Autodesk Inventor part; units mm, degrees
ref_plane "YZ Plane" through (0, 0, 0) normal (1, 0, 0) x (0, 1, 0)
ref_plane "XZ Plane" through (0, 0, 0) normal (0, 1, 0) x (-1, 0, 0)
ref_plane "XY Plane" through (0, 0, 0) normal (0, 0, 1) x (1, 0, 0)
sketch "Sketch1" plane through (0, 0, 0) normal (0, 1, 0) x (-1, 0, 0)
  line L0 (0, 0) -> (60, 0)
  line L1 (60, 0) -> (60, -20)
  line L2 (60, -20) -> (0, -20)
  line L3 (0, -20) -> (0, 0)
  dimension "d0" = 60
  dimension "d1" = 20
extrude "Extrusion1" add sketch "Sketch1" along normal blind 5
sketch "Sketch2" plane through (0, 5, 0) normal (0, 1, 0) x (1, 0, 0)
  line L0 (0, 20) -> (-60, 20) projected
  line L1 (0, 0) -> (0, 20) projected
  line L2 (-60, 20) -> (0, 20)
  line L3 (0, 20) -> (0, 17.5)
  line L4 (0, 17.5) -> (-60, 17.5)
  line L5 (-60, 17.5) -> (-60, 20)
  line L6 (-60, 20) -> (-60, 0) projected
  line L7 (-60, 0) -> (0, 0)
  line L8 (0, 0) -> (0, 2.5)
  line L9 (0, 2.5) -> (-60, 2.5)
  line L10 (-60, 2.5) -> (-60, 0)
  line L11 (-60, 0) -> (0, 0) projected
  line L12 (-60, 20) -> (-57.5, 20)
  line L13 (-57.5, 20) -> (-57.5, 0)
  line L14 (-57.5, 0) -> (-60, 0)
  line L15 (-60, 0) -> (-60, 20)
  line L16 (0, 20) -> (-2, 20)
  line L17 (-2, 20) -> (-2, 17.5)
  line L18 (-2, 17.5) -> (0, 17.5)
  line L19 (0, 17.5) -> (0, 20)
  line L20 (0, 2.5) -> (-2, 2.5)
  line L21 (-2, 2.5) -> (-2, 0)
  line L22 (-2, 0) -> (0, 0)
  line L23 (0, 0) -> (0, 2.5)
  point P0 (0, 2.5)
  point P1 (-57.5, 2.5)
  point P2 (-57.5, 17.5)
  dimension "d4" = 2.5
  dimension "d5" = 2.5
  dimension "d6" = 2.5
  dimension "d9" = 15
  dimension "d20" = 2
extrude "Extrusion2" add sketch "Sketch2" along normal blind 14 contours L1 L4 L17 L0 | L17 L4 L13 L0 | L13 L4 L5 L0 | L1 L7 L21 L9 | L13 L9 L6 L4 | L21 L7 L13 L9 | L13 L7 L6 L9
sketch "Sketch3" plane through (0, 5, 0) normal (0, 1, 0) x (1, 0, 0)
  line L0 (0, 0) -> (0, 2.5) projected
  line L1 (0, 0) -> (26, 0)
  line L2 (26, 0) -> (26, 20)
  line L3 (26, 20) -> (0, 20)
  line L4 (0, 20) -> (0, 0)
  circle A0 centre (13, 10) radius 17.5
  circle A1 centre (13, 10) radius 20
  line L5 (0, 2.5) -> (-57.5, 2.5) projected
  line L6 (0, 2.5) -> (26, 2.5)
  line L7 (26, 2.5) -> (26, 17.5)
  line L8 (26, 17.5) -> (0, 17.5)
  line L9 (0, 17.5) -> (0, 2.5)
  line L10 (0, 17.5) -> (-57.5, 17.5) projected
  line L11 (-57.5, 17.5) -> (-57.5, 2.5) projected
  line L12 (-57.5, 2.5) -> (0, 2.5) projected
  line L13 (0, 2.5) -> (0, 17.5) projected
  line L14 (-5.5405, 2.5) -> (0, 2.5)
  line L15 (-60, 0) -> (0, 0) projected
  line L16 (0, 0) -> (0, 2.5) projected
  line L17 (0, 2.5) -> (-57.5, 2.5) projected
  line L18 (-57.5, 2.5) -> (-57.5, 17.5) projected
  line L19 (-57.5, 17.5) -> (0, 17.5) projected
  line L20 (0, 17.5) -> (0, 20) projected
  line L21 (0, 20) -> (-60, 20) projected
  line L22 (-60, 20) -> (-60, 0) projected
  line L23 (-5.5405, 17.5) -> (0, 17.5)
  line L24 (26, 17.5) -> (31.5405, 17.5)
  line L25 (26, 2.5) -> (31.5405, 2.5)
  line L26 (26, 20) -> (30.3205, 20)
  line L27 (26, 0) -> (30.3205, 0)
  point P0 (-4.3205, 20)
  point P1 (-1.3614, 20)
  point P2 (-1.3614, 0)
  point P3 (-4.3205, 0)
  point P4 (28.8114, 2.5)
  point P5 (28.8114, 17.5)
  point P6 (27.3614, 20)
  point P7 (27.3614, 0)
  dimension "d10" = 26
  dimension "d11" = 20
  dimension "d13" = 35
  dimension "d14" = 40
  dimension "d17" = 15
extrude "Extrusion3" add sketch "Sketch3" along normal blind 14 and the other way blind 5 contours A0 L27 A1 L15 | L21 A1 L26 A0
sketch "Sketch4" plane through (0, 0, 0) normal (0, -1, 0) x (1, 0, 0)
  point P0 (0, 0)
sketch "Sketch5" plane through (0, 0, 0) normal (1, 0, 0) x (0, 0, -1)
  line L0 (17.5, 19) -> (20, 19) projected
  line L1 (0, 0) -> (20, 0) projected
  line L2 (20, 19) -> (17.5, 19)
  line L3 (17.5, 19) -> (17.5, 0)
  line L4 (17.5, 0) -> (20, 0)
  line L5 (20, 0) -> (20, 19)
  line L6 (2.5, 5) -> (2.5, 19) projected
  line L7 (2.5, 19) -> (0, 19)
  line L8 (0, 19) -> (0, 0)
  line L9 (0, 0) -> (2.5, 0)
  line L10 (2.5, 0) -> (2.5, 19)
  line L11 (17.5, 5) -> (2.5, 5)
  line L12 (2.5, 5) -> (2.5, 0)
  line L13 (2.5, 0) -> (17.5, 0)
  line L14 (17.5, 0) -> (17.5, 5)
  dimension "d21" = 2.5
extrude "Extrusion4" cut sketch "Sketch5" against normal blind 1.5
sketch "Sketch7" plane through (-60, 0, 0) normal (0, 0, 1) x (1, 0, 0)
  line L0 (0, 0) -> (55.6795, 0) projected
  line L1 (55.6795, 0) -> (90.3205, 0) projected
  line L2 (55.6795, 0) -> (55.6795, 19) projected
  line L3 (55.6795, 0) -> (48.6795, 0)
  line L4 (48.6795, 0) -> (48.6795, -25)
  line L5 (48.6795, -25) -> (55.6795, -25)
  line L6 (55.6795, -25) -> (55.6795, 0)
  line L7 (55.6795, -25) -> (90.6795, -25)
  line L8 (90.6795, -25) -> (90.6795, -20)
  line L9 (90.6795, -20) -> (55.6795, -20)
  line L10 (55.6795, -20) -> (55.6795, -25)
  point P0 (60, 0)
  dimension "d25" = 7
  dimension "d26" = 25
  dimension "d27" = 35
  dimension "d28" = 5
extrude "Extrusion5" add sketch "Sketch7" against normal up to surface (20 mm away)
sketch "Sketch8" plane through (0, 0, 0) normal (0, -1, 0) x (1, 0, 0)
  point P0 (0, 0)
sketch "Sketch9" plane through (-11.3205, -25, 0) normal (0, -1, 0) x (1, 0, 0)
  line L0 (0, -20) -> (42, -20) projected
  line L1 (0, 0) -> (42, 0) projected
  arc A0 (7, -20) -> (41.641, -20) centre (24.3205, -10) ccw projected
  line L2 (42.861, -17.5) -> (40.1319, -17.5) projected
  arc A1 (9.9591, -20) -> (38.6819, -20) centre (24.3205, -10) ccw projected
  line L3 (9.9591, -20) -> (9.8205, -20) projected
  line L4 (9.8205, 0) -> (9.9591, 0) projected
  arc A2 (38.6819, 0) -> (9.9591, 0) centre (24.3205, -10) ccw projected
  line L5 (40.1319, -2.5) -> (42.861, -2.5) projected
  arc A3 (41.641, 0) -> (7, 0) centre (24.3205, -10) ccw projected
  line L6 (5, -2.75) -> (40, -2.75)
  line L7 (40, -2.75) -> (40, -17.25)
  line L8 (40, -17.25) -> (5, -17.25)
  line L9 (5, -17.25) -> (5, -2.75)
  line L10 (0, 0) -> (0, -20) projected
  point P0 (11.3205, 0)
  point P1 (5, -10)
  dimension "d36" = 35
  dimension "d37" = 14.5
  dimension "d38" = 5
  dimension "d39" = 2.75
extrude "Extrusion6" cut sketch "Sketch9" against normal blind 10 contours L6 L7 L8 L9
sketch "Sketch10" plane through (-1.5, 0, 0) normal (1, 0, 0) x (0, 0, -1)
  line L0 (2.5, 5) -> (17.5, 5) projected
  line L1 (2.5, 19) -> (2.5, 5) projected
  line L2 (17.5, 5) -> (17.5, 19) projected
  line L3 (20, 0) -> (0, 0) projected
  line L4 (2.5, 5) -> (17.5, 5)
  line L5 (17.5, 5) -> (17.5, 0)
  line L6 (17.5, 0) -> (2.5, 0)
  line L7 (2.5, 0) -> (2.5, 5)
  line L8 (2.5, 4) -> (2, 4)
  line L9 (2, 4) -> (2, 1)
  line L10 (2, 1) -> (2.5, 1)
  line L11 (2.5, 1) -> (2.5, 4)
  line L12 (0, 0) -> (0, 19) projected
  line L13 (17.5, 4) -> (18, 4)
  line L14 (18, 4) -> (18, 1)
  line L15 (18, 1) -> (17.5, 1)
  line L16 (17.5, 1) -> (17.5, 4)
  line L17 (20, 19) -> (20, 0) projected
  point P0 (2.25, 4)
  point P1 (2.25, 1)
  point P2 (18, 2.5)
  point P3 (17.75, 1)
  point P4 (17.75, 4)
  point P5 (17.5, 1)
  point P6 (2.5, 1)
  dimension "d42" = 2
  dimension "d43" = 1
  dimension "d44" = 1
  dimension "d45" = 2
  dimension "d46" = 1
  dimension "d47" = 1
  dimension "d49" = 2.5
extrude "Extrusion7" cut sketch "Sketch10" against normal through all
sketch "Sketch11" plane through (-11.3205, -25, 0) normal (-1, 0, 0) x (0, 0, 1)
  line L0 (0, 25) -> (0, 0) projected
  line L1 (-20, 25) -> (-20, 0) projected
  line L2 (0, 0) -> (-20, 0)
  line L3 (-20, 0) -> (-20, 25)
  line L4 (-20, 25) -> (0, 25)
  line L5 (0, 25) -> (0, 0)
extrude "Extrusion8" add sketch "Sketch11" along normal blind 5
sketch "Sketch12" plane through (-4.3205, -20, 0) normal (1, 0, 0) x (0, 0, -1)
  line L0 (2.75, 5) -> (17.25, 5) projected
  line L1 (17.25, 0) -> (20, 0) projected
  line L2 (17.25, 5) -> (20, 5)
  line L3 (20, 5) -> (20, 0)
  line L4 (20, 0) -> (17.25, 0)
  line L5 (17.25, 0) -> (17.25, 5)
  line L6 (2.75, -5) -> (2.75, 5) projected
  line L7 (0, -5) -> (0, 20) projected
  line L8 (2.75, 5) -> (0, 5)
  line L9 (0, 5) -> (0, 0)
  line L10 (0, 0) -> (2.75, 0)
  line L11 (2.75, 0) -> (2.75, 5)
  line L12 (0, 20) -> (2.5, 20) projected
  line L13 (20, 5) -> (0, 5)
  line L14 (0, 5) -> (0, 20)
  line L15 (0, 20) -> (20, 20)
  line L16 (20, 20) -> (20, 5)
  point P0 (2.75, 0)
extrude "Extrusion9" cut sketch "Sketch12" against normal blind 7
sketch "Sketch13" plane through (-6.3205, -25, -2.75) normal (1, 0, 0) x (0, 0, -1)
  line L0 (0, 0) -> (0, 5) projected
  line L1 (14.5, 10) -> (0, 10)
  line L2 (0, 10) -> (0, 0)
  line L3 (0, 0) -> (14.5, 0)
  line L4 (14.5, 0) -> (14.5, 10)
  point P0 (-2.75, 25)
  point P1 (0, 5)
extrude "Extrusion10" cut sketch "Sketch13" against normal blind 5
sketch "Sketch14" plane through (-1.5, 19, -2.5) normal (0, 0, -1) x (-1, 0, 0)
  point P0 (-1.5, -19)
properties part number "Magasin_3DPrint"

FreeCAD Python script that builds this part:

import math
import FreeCAD as App
import Part
import Sketcher
from FreeCAD import Vector


def add_polygon(sketch, points):
    """Adds a closed chain of lines whose ends are joined by coincident constraints."""
    first, n = sketch.GeometryCount, len(points)
    for a, b in zip(points, points[1:] + points[:1]):
        sketch.addGeometry(Part.LineSegment(App.Vector(*a, 0), App.Vector(*b, 0)), False)
    for i in range(n):
        sketch.addConstraint(Sketcher.Constraint("Coincident", first + i, 2, first + (i + 1) % n, 1))

doc = App.newDocument("Part")
body = doc.addObject("PartDesign::Body", "Body")

sketch1 = body.newObject("Sketcher::SketchObject", "Sketch")
sketch1.AttachmentSupport = (doc.getObject("XZ_Plane"), [""])
sketch1.MapMode = "FlatFace"
add_polygon(sketch1, [(-60, 0), (0, 0), (0, -20), (-60, -20)])
sketch1.addConstraint([
    Sketcher.Constraint("Horizontal", 0),
    Sketcher.Constraint("Vertical", 1),
    Sketcher.Constraint("Horizontal", 2),
    Sketcher.Constraint("Vertical", 3),
    Sketcher.Constraint("Coincident", 0, 2, -1, 1),
    Sketcher.Constraint("DistanceX", 0, 1, 0, 2, 60.0),
    Sketcher.Constraint("DistanceY", 1, 2, 1, 1, 20.0),
])
pad1 = body.newObject("PartDesign::Pad", "Pad")
pad1.Profile = sketch1
pad1.Length = 5
pad1.Reversed = True

sketch2 = body.newObject("Sketcher::SketchObject", "Sketch001")
sketch2.AttachmentSupport = (doc.getObject("XZ_Plane"), [""])
sketch2.MapMode = "FlatFace"
sketch2.AttachmentOffset = App.Placement(Vector(0, 0, -5), App.Rotation())
add_polygon(sketch2, [(0, -17.5), (0, -20), (-60, -20), (-60, 0), (0, 0), (0, -2.5), (-57.5, -2.5), (-57.5, -17.5)])
sketch2.addConstraint([
    Sketcher.Constraint("Vertical", 0),
    Sketcher.Constraint("Horizontal", 1),
    Sketcher.Constraint("Vertical", 2),
    Sketcher.Constraint("Horizontal", 3),
    Sketcher.Constraint("Vertical", 4),
    Sketcher.Constraint("Horizontal", 5),
    Sketcher.Constraint("Vertical", 6),
    Sketcher.Constraint("Horizontal", 7),
    Sketcher.Constraint("Coincident", 3, 2, -1, 1),
    Sketcher.Constraint("PointOnObject", 0, 2, -2),
    Sketcher.Constraint("Equal", 0, 4),
    Sketcher.Constraint("DistanceY", 6, 2, 6, 1, 15.0),
    Sketcher.Constraint("DistanceY", 0, 2, 0, 1, 2.5),
    Sketcher.Constraint("DistanceX", 2, 2, 5, 2, 2.5),
    Sketcher.Constraint("DistanceX", 1, 2, 1, 1, 60.0),
])
pad2 = body.newObject("PartDesign::Pad", "Pad001")
pad2.Profile = sketch2
pad2.Length = 14
pad2.Reversed = True

sketch3 = body.newObject("Sketcher::SketchObject", "Sketch002")
sketch3.AttachmentSupport = (doc.getObject("XZ_Plane"), [""])
sketch3.MapMode = "FlatFace"
sketch3.AttachmentOffset = App.Placement(Vector(0, 0, -5), App.Rotation())
sketch3.addGeometry([
    Part.ArcOfCircle(Part.Circle(Vector(13, -10, 0), Vector(0, 0, 1), 17.5), math.radians(35), math.radians(145)),
    Part.LineSegment(Vector(-1.4, 0, 0), Vector(-4.3, 0, 0)),
    Part.ArcOfCircle(Part.Circle(Vector(13, -10, 0), Vector(0, 0, 1), 20), math.radians(30), math.radians(150)),
    Part.LineSegment(Vector(30.3, 0, 0), Vector(27.4, 0, 0)),
    Part.LineSegment(Vector(-4.3, -20, 0), Vector(-1.4, -20, 0)),
    Part.ArcOfCircle(Part.Circle(Vector(13, -10, 0), Vector(0, 0, 1), 17.5), math.radians(-145), math.radians(-35)),
    Part.LineSegment(Vector(27.4, -20, 0), Vector(30.3, -20, 0)),
    Part.ArcOfCircle(Part.Circle(Vector(13, -10, 0), Vector(0, 0, 1), 20), math.radians(-150), math.radians(-30)),
], False)
sketch3.addConstraint([
    Sketcher.Constraint("Coincident", 0, 2, 1, 1),
    Sketcher.Constraint("Coincident", 1, 2, 2, 2),
    Sketcher.Constraint("Coincident", 2, 1, 3, 1),
    Sketcher.Constraint("Coincident", 3, 2, 0, 1),
    Sketcher.Constraint("Coincident", 4, 2, 5, 1),
    Sketcher.Constraint("Coincident", 5, 2, 6, 1),
    Sketcher.Constraint("Coincident", 6, 2, 7, 2),
    Sketcher.Constraint("Coincident", 7, 1, 4, 1),
    Sketcher.Constraint("Horizontal", 1),
    Sketcher.Constraint("Horizontal", 3),
    Sketcher.Constraint("Horizontal", 4),
    Sketcher.Constraint("Horizontal", 6),
    Sketcher.Constraint("Coincident", 2, 3, 0, 3),
    Sketcher.Constraint("Coincident", 5, 3, 0, 3),
    Sketcher.Constraint("Coincident", 7, 3, 0, 3),
    Sketcher.Constraint("Equal", 0, 5),
    Sketcher.Constraint("Equal", 2, 7),
    Sketcher.Constraint("PointOnObject", 0, 2, -1),
    Sketcher.Constraint("PointOnObject", 2, 1, -1),
    Sketcher.Constraint("Horizontal", 4, 2, 5, 2),
    Sketcher.Constraint("Vertical", 0, 2, 4, 2),
    Sketcher.Constraint("Radius", 2, 20.0),
    Sketcher.Constraint("Radius", 0, 17.5),
    Sketcher.Constraint("DistanceY", 4, 2, -1, 1, 20.0),
    Sketcher.Constraint("DistanceX", -1, 1, 0, 3, 13.0),
])
pad3 = body.newObject("PartDesign::Pad", "Pad002")
pad3.Profile = sketch3
pad3.Type = "TwoLengths"
pad3.Length = 14
pad3.Length2 = 5
pad3.Reversed = True

sketch4 = body.newObject("Sketcher::SketchObject", "Sketch003")
sketch4.AttachmentSupport = (doc.getObject("YZ_Plane"), [""])
sketch4.MapMode = "FlatFace"
add_polygon(sketch4, [(19, -20), (19, -17.5), (5, -17.5), (5, -2.5), (19, -2.5), (19, 0), (0, 0), (0, -20)])
sketch4.addConstraint([
    Sketcher.Constraint("Vertical", 0),
    Sketcher.Constraint("Horizontal", 1),
    Sketcher.Constraint("Vertical", 2),
    Sketcher.Constraint("Horizontal", 3),
    Sketcher.Constraint("Vertical", 4),
    Sketcher.Constraint("Horizontal", 5),
    Sketcher.Constraint("Vertical", 6),
    Sketcher.Constraint("Horizontal", 7),
    Sketcher.Constraint("Coincident", 5, 2, -1, 1),
    Sketcher.Constraint("Vertical", 0, 2, 3, 2),
    Sketcher.Constraint("Equal", 0, 4),
    Sketcher.Constraint("DistanceY", 0, 1, 0, 2, 2.5),
    Sketcher.Constraint("DistanceX", 1, 2, 1, 1, 14.0),
    Sketcher.Constraint("DistanceX", 5, 2, 5, 1, 19.0),
    Sketcher.Constraint("DistanceY", 2, 1, 2, 2, 15.0),
])
pocket1 = body.newObject("PartDesign::Pocket", "Pocket")
pocket1.Profile = sketch4
pocket1.Length = 1.5

sketch5 = body.newObject("Sketcher::SketchObject", "Sketch004")
sketch5.AttachmentSupport = (doc.getObject("XY_Plane"), [""])
sketch5.MapMode = "FlatFace"
add_polygon(sketch5, [(-4, 0), (-11, 0), (-11, -25), (31, -25), (31, -20), (-4, -20)])
sketch5.addConstraint([
    Sketcher.Constraint("Horizontal", 0),
    Sketcher.Constraint("Vertical", 1),
    Sketcher.Constraint("Horizontal", 2),
    Sketcher.Constraint("Vertical", 3),
    Sketcher.Constraint("Horizontal", 4),
    Sketcher.Constraint("Vertical", 5),
    Sketcher.Constraint("PointOnObject", 0, 2, -1),
    Sketcher.Constraint("DistanceX", 0, 2, 0, 1, 7.0),
    Sketcher.Constraint("DistanceX", 4, 2, 4, 1, 35.0),
    Sketcher.Constraint("DistanceY", 1, 2, 1, 1, 25.0),
    Sketcher.Constraint("DistanceY", 3, 1, 3, 2, 5.0),
    Sketcher.Constraint("DistanceX", 0, 2, -1, 1, 11.3205),
])
pad4 = body.newObject("PartDesign::Pad", "Pad003")
pad4.Profile = sketch5
pad4.Length = 20
pad4.Reversed = True

sketch6 = body.newObject("Sketcher::SketchObject", "Sketch005")
sketch6.AttachmentSupport = (doc.getObject("XZ_Plane"), [""])
sketch6.MapMode = "FlatFace"
sketch6.AttachmentOffset = App.Placement(Vector(0, 0, 25), App.Rotation())
add_polygon(sketch6, [(29, -3), (-6, -3), (-6, -17), (29, -17)])
sketch6.addConstraint([
    Sketcher.Constraint("Horizontal", 0),
    Sketcher.Constraint("Vertical", 1),
    Sketcher.Constraint("Horizontal", 2),
    Sketcher.Constraint("Vertical", 3),
    Sketcher.Constraint("DistanceX", 0, 2, 0, 1, 35.0),
    Sketcher.Constraint("DistanceY", 1, 2, 1, 1, 14.5),
    Sketcher.Constraint("DistanceY", 0, 2, -1, 1, 2.75),
    Sketcher.Constraint("DistanceX", 0, 2, -1, 1, 6.3205),
])
pocket2 = body.newObject("PartDesign::Pocket", "Pocket001")
pocket2.Profile = sketch6
pocket2.Length = 10

sketch7 = body.newObject("Sketcher::SketchObject", "Sketch006")
sketch7.AttachmentSupport = (doc.getObject("YZ_Plane"), [""])
sketch7.MapMode = "FlatFace"
sketch7.AttachmentOffset = App.Placement(Vector(0, 0, -1.5), App.Rotation())
add_polygon(sketch7, [(5, -17.5), (5, -2.5), (4, -2.5), (4, -2), (1, -2), (1, -2.5), (0, -2.5), (0, -17.5), (1, -17.5), (1, -18), (4, -18), (4, -17.5)])
sketch7.addConstraint([
    Sketcher.Constraint("Vertical", 0),
    Sketcher.Constraint("Horizontal", 1),
    Sketcher.Constraint("Vertical", 2),
    Sketcher.Constraint("Horizontal", 3),
    Sketcher.Constraint("Vertical", 4),
    Sketcher.Constraint("Horizontal", 5),
    Sketcher.Constraint("Vertical", 6),
    Sketcher.Constraint("Horizontal", 7),
    Sketcher.Constraint("Vertical", 8),
    Sketcher.Constraint("Horizontal", 9),
    Sketcher.Constraint("Vertical", 10),
    Sketcher.Constraint("Horizontal", 11),
    Sketcher.Constraint("PointOnObject", 5, 2, -2),
    Sketcher.Constraint("Horizontal", 1, 2, 4, 2),
    Sketcher.Constraint("Horizontal", 7, 2, 10, 2),
    Sketcher.Constraint("Vertical", 4, 2, 7, 2),
    Sketcher.Constraint("Vertical", 2, 2, 9, 2),
    Sketcher.Constraint("Equal", 1, 5),
    Sketcher.Constraint("Equal", 4, 8),
    Sketcher.Constraint("DistanceX", 1, 2, 1, 1, 1.0),
    Sketcher.Constraint("DistanceY", 2, 2, -1, 1, 2.0),
    Sketcher.Constraint("DistanceY", 0, 2, -1, 1, 2.5),
    Sketcher.Constraint("DistanceX", 3, 2, 3, 1, 3.0),
    Sketcher.Constraint("DistanceY", 0, 1, 0, 2, 15.0),
])
pocket3 = body.newObject("PartDesign::Pocket", "Pocket002")
pocket3.Profile = sketch7
pocket3.Type = "ThroughAll"

sketch8 = body.newObject("Sketcher::SketchObject", "Sketch007")
sketch8.AttachmentSupport = (doc.getObject("YZ_Plane"), [""])
sketch8.MapMode = "FlatFace"
sketch8.AttachmentOffset = App.Placement(Vector(0, 0, -11.3205), App.Rotation())
add_polygon(sketch8, [(-25, 0), (0, 0), (0, -20), (-25, -20)])
sketch8.addConstraint([
    Sketcher.Constraint("Horizontal", 0),
    Sketcher.Constraint("Vertical", 1),
    Sketcher.Constraint("Horizontal", 2),
    Sketcher.Constraint("Vertical", 3),
    Sketcher.Constraint("Coincident", 0, 2, -1, 1),
    Sketcher.Constraint("DistanceX", 0, 1, 0, 2, 25.0),
    Sketcher.Constraint("DistanceY", 1, 2, 1, 1, 20.0),
])
pad5 = body.newObject("PartDesign::Pad", "Pad004")
pad5.Profile = sketch8
pad5.Length = 5
pad5.Reversed = True

sketch9 = body.newObject("Sketcher::SketchObject", "Sketch008")
sketch9.AttachmentSupport = (doc.getObject("YZ_Plane"), [""])
sketch9.MapMode = "FlatFace"
sketch9.AttachmentOffset = App.Placement(Vector(0, 0, -4.3205), App.Rotation())
add_polygon(sketch9, [(0, 0), (-20, 0), (-20, -2.8), (-15, -2.8), (-15, -17.2), (-20, -17.2), (-20, -20), (0, -20)])
sketch9.addConstraint([
    Sketcher.Constraint("Horizontal", 0),
    Sketcher.Constraint("Vertical", 1),
    Sketcher.Constraint("Horizontal", 2),
    Sketcher.Constraint("Vertical", 3),
    Sketcher.Constraint("Horizontal", 4),
    Sketcher.Constraint("Vertical", 5),
    Sketcher.Constraint("Horizontal", 6),
    Sketcher.Constraint("Vertical", 7),
    Sketcher.Constraint("Coincident", 7, 2, -1, 1),
    Sketcher.Constraint("Vertical", 1, 2, 4, 2),
    Sketcher.Constraint("Equal", 1, 5),
    Sketcher.Constraint("Equal", 6, 7),
    Sketcher.Constraint("DistanceX", 0, 2, 0, 1, 20.0),
    Sketcher.Constraint("DistanceX", 2, 1, 2, 2, 5.0),
    Sketcher.Constraint("DistanceY", 3, 2, 3, 1, 14.5),
])
pocket4 = body.newObject("PartDesign::Pocket", "Pocket003")
pocket4.Profile = sketch9
pocket4.Length = 7

sketch10 = body.newObject("Sketcher::SketchObject", "Sketch009")
sketch10.AttachmentSupport = (doc.getObject("YZ_Plane"), [""])
sketch10.MapMode = "FlatFace"
sketch10.AttachmentOffset = App.Placement(Vector(0, 0, -6.3205), App.Rotation())
add_polygon(sketch10, [(-15, -3), (-25, -3), (-25, -17), (-15, -17)])
sketch10.addConstraint([
    Sketcher.Constraint("Horizontal", 0),
    Sketcher.Constraint("Vertical", 1),
    Sketcher.Constraint("Horizontal", 2),
    Sketcher.Constraint("Vertical", 3),
    Sketcher.Constraint("DistanceX", 0, 2, 0, 1, 10.0),
    Sketcher.Constraint("DistanceY", 1, 2, 1, 1, 14.5),
    Sketcher.Constraint("DistanceX", 0, 2, -1, 1, 25.0),
    Sketcher.Constraint("DistanceY", 0, 2, -1, 1, 2.75),
])
pocket5 = body.newObject("PartDesign::Pocket", "Pocket004")
pocket5.Profile = sketch10
pocket5.Length = 5

doc.recompute()
